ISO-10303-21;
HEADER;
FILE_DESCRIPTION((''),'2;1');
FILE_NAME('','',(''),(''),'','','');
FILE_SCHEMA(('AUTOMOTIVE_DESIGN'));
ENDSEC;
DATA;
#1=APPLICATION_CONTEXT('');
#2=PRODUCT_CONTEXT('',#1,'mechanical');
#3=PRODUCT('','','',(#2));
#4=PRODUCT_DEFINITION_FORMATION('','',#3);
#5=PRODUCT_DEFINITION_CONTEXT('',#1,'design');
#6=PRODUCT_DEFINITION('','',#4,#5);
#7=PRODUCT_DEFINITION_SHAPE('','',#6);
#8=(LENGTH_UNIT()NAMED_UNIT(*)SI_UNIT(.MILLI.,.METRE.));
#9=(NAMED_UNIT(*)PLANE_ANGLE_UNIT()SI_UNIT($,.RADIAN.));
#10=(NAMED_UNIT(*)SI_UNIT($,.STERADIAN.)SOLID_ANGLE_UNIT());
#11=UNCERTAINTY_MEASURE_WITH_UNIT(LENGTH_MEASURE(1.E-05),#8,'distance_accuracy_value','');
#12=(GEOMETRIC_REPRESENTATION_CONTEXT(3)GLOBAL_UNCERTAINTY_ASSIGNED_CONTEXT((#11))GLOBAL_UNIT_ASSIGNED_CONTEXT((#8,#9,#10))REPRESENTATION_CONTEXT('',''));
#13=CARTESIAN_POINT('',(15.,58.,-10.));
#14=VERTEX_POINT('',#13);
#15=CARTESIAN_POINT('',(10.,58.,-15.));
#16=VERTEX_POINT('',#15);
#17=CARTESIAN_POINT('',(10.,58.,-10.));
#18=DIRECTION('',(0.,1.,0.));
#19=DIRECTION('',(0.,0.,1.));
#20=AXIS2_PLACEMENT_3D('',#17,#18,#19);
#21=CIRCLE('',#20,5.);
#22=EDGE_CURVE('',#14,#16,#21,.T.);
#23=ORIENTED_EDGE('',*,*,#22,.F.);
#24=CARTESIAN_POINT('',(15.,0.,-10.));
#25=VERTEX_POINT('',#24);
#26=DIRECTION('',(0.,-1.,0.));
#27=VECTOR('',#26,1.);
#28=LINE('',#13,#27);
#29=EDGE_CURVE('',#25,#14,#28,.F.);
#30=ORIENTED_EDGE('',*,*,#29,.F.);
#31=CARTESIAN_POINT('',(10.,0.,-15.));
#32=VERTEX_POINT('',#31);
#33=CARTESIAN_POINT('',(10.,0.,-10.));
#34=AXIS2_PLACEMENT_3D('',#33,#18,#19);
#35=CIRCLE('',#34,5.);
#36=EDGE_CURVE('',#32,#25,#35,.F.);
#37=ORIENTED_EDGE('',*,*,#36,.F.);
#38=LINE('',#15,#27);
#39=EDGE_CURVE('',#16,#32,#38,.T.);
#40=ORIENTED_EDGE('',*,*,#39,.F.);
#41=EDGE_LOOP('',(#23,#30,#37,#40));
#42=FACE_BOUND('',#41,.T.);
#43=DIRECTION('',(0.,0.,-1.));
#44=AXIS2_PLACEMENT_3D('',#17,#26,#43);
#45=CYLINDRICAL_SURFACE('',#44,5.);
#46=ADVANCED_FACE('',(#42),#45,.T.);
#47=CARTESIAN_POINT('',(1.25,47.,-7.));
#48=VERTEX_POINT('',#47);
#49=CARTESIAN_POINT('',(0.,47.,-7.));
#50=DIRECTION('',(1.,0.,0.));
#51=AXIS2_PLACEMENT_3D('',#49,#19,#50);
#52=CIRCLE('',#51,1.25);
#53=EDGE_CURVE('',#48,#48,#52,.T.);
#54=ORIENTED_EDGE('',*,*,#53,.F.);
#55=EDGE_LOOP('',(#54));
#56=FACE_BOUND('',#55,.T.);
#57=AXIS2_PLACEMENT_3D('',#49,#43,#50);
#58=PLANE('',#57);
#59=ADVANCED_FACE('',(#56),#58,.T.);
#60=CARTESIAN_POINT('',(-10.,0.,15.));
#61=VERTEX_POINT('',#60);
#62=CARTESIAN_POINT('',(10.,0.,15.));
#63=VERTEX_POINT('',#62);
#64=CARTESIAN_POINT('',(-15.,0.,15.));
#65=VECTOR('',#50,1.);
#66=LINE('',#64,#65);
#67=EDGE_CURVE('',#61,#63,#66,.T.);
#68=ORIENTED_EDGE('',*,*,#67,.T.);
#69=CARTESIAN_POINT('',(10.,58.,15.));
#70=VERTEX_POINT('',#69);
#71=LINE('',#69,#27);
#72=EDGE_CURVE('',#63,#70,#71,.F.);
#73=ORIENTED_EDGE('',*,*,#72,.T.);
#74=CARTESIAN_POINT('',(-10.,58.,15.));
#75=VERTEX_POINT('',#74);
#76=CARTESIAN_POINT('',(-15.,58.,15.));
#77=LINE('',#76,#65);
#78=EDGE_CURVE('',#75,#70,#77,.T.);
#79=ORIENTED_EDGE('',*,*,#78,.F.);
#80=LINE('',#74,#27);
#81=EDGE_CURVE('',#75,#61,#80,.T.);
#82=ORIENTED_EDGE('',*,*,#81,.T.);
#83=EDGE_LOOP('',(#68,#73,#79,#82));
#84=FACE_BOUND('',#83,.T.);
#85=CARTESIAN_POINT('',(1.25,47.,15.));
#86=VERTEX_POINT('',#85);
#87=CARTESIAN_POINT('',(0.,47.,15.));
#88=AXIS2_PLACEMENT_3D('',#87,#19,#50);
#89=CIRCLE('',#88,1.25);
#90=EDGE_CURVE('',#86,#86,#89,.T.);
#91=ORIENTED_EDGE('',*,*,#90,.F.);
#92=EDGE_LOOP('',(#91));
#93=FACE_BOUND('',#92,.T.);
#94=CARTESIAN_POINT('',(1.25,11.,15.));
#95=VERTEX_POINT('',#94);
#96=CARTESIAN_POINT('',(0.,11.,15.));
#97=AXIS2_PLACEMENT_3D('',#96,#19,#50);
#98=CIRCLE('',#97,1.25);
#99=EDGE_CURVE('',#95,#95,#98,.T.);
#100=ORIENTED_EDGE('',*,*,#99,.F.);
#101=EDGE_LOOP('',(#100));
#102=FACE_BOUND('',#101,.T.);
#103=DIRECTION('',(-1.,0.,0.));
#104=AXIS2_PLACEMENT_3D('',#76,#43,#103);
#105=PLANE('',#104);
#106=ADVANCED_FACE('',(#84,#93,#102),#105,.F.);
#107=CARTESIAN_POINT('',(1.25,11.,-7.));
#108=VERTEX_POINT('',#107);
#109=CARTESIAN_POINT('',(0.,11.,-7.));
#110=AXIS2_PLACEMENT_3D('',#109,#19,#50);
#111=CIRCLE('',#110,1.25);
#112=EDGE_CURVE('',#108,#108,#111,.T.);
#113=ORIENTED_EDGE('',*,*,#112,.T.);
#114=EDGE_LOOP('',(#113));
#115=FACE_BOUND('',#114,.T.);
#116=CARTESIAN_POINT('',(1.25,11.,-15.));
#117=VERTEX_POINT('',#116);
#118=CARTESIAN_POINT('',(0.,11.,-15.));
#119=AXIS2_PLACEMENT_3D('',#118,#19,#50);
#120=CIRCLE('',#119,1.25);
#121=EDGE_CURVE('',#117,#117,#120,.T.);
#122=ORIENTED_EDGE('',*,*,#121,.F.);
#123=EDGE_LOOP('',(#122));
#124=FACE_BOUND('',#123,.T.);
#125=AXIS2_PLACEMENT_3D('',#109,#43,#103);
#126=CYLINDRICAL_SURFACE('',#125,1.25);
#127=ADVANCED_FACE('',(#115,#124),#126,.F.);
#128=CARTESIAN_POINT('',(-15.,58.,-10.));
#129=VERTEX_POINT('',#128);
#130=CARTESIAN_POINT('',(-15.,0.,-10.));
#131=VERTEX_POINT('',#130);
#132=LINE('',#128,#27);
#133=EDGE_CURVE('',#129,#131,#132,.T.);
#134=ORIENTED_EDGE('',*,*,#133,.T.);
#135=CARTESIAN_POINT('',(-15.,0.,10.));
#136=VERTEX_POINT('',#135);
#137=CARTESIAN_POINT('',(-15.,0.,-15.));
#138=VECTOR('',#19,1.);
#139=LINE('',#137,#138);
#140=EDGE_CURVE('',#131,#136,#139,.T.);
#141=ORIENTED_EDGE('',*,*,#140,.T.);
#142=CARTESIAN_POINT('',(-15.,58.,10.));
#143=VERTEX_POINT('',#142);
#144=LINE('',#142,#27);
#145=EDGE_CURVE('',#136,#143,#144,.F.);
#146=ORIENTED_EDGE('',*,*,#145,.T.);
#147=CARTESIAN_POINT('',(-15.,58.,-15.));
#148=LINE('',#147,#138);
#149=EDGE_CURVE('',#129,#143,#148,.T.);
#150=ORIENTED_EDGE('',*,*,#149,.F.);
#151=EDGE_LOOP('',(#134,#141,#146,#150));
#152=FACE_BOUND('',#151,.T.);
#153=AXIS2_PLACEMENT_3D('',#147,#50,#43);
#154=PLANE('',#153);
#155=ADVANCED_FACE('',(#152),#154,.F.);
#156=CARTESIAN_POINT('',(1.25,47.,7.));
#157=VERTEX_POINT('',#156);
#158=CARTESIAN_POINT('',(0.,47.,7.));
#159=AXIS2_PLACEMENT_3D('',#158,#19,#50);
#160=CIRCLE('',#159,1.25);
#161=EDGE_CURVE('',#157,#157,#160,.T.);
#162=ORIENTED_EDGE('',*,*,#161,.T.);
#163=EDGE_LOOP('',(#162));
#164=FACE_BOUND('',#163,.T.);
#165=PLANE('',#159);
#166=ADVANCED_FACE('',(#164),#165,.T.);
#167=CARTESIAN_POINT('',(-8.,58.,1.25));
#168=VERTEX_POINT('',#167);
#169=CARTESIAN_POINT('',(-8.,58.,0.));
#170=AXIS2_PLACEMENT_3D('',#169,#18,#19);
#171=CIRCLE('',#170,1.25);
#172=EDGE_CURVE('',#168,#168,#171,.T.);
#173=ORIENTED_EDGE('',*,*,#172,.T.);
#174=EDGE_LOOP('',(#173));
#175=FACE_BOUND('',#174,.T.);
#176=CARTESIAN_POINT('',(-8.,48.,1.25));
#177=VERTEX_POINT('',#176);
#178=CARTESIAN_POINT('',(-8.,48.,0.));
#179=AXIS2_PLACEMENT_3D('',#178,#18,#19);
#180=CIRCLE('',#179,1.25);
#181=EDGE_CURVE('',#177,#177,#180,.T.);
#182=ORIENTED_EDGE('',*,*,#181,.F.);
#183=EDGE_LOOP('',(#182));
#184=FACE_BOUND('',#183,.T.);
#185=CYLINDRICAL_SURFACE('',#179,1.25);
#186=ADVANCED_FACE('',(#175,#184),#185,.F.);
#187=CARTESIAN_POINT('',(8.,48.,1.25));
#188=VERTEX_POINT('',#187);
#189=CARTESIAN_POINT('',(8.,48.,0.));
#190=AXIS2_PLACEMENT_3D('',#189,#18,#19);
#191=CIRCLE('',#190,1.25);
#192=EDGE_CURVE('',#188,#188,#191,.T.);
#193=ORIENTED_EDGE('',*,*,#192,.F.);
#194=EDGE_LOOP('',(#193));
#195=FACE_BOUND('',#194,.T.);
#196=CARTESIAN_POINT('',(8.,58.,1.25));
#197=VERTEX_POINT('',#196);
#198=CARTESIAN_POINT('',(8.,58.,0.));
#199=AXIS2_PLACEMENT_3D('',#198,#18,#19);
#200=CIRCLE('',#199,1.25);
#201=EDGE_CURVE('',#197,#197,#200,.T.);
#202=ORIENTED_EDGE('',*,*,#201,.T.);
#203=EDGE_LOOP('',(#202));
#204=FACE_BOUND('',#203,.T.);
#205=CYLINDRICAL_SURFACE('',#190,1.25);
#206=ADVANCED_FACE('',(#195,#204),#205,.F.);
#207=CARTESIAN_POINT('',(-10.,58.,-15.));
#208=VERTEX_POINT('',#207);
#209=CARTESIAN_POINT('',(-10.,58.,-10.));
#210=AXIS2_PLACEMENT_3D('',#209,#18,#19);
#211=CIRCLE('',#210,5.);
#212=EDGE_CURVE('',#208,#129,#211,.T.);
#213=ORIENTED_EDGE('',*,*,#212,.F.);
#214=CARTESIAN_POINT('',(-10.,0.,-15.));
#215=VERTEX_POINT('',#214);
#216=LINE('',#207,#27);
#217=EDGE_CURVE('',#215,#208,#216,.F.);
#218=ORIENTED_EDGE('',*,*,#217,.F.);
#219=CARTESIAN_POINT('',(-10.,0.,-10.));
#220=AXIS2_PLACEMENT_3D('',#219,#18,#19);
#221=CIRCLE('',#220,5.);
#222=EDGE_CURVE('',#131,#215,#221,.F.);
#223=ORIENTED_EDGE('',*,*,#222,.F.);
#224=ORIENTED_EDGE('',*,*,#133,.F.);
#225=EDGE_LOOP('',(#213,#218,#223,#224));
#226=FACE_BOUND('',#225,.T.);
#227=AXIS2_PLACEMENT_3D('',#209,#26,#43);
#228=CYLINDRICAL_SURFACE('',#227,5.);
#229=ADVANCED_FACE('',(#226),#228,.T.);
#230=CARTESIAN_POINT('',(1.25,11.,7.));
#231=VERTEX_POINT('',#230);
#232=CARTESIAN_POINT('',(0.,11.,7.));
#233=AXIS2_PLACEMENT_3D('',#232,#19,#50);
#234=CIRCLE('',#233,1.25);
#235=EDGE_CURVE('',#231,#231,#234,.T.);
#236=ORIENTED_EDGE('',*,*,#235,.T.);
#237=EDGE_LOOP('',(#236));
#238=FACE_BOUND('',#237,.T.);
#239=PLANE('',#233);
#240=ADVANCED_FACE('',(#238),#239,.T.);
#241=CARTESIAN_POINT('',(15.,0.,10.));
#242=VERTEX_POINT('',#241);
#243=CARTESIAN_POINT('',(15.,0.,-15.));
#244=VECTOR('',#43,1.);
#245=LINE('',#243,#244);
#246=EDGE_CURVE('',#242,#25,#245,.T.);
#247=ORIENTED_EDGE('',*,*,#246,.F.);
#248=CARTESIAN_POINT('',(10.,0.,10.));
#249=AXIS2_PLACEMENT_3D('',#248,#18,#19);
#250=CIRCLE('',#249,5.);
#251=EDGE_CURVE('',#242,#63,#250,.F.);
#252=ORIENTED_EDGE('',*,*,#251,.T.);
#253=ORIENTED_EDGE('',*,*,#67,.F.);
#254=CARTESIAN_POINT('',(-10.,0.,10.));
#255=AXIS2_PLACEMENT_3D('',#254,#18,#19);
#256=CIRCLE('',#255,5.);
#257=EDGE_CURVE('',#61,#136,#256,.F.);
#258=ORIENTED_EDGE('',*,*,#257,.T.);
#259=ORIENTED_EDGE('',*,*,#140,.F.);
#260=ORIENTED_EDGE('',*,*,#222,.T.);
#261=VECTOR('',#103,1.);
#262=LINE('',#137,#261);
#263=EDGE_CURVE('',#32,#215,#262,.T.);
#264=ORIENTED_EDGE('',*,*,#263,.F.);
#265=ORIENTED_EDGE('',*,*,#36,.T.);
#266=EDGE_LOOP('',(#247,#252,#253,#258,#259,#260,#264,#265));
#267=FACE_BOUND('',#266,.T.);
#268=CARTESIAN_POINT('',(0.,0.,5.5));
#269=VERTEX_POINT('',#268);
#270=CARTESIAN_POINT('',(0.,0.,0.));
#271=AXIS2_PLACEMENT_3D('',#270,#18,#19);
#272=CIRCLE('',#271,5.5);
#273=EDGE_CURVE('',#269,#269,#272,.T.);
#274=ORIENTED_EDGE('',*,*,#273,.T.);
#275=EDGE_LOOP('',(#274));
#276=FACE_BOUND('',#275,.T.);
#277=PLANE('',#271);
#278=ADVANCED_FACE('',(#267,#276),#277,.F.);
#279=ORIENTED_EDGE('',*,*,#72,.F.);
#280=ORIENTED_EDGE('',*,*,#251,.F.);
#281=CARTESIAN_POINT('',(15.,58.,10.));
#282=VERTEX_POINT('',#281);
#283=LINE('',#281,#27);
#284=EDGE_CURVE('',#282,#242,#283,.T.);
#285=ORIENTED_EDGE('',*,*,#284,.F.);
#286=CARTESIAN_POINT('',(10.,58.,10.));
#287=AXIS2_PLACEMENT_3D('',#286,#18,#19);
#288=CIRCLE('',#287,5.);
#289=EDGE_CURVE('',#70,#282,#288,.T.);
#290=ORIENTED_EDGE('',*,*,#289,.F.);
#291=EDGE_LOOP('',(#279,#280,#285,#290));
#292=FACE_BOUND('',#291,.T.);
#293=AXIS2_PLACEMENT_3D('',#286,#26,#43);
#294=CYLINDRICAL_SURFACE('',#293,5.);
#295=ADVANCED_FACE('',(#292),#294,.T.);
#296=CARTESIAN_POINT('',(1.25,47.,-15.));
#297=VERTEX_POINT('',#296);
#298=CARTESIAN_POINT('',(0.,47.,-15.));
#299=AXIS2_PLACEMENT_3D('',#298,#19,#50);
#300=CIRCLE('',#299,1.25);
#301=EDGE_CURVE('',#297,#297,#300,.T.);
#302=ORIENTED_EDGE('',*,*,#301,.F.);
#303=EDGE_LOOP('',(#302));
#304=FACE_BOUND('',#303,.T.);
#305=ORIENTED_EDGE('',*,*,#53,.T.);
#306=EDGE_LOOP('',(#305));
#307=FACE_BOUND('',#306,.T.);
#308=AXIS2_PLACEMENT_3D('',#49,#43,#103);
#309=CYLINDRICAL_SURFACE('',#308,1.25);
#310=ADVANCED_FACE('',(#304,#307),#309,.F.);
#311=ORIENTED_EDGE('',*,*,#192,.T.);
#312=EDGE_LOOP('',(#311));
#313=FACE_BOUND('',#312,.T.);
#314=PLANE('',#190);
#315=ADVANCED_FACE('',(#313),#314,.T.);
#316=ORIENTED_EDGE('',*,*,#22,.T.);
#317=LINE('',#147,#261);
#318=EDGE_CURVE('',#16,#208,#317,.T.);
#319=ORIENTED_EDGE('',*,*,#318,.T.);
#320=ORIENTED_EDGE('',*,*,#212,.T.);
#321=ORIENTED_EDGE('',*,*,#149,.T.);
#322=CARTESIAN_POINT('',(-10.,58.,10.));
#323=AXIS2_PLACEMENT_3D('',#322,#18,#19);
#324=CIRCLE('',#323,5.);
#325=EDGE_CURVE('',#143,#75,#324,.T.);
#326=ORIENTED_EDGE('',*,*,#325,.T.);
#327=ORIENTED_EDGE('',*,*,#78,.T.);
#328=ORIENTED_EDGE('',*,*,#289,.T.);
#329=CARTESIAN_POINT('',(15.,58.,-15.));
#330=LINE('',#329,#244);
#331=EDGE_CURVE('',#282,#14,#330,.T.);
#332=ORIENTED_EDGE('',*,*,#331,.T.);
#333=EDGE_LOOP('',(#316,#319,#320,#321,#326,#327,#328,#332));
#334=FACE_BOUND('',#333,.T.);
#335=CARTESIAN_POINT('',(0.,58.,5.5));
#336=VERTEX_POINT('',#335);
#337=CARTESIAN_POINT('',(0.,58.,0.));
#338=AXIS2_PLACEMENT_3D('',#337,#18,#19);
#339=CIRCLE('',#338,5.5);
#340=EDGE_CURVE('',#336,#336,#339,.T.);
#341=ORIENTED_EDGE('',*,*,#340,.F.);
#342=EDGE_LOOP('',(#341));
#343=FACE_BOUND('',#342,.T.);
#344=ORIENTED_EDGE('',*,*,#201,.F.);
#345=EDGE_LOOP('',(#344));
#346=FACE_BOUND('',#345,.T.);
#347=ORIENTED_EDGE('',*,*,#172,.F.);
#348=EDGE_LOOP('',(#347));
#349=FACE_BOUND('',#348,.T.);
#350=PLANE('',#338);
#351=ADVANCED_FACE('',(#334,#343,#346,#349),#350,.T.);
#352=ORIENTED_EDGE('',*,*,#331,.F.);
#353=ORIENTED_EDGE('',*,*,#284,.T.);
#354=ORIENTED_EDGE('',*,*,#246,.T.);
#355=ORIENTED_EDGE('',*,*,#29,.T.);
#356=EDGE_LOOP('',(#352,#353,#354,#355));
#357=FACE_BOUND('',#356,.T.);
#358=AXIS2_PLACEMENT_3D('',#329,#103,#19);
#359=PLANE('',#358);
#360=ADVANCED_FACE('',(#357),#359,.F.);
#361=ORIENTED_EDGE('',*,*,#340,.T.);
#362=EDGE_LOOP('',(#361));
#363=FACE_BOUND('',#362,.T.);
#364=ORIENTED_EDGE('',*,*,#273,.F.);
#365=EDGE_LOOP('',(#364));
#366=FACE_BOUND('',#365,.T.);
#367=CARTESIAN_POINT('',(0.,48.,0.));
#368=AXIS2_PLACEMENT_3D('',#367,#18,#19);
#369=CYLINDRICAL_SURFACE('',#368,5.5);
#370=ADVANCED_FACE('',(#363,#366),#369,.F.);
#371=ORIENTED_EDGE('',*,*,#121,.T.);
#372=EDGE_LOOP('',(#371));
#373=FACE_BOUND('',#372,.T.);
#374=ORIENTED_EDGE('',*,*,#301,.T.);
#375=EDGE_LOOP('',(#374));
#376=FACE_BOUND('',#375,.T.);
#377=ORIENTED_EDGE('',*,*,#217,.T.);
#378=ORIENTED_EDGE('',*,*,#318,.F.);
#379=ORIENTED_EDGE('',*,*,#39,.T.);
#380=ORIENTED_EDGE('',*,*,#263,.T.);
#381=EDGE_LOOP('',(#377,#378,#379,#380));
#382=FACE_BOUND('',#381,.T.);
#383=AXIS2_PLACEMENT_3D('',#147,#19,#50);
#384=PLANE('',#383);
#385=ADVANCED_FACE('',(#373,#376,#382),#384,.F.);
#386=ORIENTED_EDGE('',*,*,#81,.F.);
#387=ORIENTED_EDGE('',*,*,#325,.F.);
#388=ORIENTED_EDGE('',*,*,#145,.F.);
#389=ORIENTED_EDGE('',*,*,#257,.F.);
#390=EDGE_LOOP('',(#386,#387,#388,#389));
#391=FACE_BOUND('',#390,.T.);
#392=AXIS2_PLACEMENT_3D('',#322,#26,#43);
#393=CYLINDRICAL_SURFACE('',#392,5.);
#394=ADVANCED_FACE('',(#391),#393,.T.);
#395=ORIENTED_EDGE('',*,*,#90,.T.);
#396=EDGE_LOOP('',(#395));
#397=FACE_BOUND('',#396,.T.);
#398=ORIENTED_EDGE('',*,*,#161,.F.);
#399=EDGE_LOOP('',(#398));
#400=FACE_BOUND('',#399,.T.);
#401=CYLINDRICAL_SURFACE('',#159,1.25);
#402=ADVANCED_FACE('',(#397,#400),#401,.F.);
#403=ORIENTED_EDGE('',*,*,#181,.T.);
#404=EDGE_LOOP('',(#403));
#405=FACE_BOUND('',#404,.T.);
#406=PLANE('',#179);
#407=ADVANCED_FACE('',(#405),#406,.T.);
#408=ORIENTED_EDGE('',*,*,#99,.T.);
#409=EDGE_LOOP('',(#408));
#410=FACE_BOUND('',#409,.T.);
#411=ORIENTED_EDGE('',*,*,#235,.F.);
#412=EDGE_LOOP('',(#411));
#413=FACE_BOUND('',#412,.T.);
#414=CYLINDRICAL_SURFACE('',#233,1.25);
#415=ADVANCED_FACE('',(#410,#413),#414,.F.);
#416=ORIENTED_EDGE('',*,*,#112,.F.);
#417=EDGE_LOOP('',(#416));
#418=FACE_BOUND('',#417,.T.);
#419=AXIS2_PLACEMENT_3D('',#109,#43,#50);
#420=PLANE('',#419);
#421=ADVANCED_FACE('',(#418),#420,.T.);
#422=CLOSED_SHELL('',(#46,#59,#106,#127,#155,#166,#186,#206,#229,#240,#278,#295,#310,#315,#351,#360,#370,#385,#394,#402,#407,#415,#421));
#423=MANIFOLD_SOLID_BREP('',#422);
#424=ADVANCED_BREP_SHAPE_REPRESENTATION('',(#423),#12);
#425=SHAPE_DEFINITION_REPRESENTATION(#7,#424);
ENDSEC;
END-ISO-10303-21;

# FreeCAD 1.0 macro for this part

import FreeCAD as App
import Part
import Sketcher
from FreeCAD import Vector
Q = App.Units.Quantity


def edges_at(feature, points):
    """Names of the edges that pass closest to the given points."""
    edges = feature.Shape.Edges
    near = lambda p: min(range(len(edges)), key=lambda i: edges[i].distToShape(Part.Vertex(*p))[0])
    return sorted({f"Edge{near(p) + 1}" for p in points})


def add_polygon(sketch, points):
    """Adds a closed chain of lines whose ends are joined by coincident constraints."""
    first, n = sketch.GeometryCount, len(points)
    for a, b in zip(points, points[1:] + points[:1]):
        sketch.addGeometry(Part.LineSegment(App.Vector(*a, 0), App.Vector(*b, 0)), False)
    for i in range(n):
        sketch.addConstraint(Sketcher.Constraint("Coincident", first + i, 2, first + (i + 1) % n, 1))

doc = App.newDocument("Part")
body = doc.addObject("PartDesign::Body", "Body")

sketch1 = body.newObject("Sketcher::SketchObject", "Sketch")
sketch1.AttachmentSupport = (doc.getObject("XZ_Plane"), [""])
sketch1.MapMode = "FlatFace"
add_polygon(sketch1, [(-15, -15), (-15, 15), (15, 15), (15, -15)])
sketch1.addConstraint(Sketcher.Constraint("Vertical", 0))
sketch1.addConstraint(Sketcher.Constraint("Horizontal", 1))
sketch1.addConstraint(Sketcher.Constraint("Vertical", 2))
sketch1.addConstraint(Sketcher.Constraint("Horizontal", 3))
sketch1.addConstraint(Sketcher.Constraint("Symmetric", 0, 2, 2, 2, -1, 1))
sketch1.addConstraint(Sketcher.Constraint("Equal", 3, 0))
sketch1.addConstraint(Sketcher.Constraint("DistanceX", 1, 1, 1, 2, Q("30 mm")))
pad1 = body.newObject("PartDesign::Pad", "Pad")
pad1.Profile = sketch1
pad1.Length = 58
pad1.Reversed = True

sketch2 = body.newObject("Sketcher::SketchObject", "Sketch001")
sketch2.AttachmentSupport = (doc.getObject("XZ_Plane"), [""])
sketch2.MapMode = "FlatFace"
sketch2.AttachmentOffset = App.Placement(Vector(0, 0, -58), App.Rotation())
sketch2.addGeometry(Part.Circle(Vector(0, 0, 0), Vector(0, 0, 1), 5.5), False)
sketch2.addGeometry(Part.Circle(Vector(8, 0, 0), Vector(0, 0, 1), 1.2), False)
sketch2.addGeometry(Part.Circle(Vector(-8, 0, 0), Vector(0, 0, 1), 1.2), False)
sketch2.addConstraint(Sketcher.Constraint("Coincident", 0, 3, -1, 1))
sketch2.addConstraint(Sketcher.Constraint("Equal", 1, 2))
sketch2.addConstraint(Sketcher.Constraint("Symmetric", 1, 3, 2, 3, -1, 1))
sketch2.addConstraint(Sketcher.Constraint("PointOnObject", 1, 3, -1))
sketch2.addConstraint(Sketcher.Constraint("Diameter", 0, Q("11 mm")))
sketch2.addConstraint(Sketcher.Constraint("Diameter", 1, Q("2.5 mm")))
sketch2.addConstraint(Sketcher.Constraint("DistanceX", -1, 1, 1, 3, Q("8 mm")))
pocket1 = body.newObject("PartDesign::Pocket", "Pocket")
pocket1.Profile = sketch2
pocket1.Length = 10
pocket1.Reversed = True

sketch3 = body.newObject("Sketcher::SketchObject", "Sketch002")
sketch3.AttachmentSupport = (doc.getObject("XZ_Plane"), [""])
sketch3.MapMode = "FlatFace"
sketch3.AttachmentOffset = App.Placement(Vector(0, 0, -48), App.Rotation())
sketch3.addGeometry(Part.Circle(Vector(0, 0, 0), Vector(0, 0, 1), 6), False)
sketch3.addConstraint(Sketcher.Constraint("Coincident", 0, 3, -1, 1))
sketch3.addConstraint(Sketcher.Constraint("Diameter", 0, Q("11 mm")))
pocket2 = body.newObject("PartDesign::Pocket", "Pocket001")
pocket2.Profile = sketch3
pocket2.Type = "ThroughAll"
pocket2.Reversed = True

sketch4 = body.newObject("Sketcher::SketchObject", "Sketch003")
sketch4.AttachmentSupport = (doc.getObject("XY_Plane"), [""])
sketch4.MapMode = "FlatFace"
sketch4.AttachmentOffset = App.Placement(Vector(0, 0, 15), App.Rotation())
sketch4.addGeometry(Part.Circle(Vector(0, 47, 0), Vector(0, 0, 1), 1.2), False)
sketch4.addGeometry(Part.Circle(Vector(0, 11, 0), Vector(0, 0, 1), 1.2), False)
sketch4.addConstraint(Sketcher.Constraint("Equal", 0, 1))
sketch4.addConstraint(Sketcher.Constraint("PointOnObject", 0, 3, -2))
sketch4.addConstraint(Sketcher.Constraint("PointOnObject", 1, 3, -2))
sketch4.addConstraint(Sketcher.Constraint("Diameter", 0, Q("2.5 mm")))
sketch4.addConstraint(Sketcher.Constraint("DistanceY", -1, 1, 0, 3, Q("47 mm")))
sketch4.addConstraint(Sketcher.Constraint("DistanceY", -1, 1, 1, 3, Q("11 mm")))
pocket3 = body.newObject("PartDesign::Pocket", "Pocket002")
pocket3.Profile = sketch4
pocket3.Length = 8
doc.recompute()

mirrored = body.newObject("PartDesign::Mirrored", "Mirrored")
mirrored.Originals = [pocket3]
mirrored.MirrorPlane = (doc.getObject("XY_Plane"), [""])
body.Tip = mirrored
doc.recompute()

fillet = body.newObject("PartDesign::Fillet", "Fillet")
fillet.Base = (mirrored, edges_at(mirrored, [
    (15, 29, 15),
    (-15, 29, 15),
    (-15, 29, -15),
    (15, 29, -15),
]))
fillet.Radius = 5

doc.recompute()
